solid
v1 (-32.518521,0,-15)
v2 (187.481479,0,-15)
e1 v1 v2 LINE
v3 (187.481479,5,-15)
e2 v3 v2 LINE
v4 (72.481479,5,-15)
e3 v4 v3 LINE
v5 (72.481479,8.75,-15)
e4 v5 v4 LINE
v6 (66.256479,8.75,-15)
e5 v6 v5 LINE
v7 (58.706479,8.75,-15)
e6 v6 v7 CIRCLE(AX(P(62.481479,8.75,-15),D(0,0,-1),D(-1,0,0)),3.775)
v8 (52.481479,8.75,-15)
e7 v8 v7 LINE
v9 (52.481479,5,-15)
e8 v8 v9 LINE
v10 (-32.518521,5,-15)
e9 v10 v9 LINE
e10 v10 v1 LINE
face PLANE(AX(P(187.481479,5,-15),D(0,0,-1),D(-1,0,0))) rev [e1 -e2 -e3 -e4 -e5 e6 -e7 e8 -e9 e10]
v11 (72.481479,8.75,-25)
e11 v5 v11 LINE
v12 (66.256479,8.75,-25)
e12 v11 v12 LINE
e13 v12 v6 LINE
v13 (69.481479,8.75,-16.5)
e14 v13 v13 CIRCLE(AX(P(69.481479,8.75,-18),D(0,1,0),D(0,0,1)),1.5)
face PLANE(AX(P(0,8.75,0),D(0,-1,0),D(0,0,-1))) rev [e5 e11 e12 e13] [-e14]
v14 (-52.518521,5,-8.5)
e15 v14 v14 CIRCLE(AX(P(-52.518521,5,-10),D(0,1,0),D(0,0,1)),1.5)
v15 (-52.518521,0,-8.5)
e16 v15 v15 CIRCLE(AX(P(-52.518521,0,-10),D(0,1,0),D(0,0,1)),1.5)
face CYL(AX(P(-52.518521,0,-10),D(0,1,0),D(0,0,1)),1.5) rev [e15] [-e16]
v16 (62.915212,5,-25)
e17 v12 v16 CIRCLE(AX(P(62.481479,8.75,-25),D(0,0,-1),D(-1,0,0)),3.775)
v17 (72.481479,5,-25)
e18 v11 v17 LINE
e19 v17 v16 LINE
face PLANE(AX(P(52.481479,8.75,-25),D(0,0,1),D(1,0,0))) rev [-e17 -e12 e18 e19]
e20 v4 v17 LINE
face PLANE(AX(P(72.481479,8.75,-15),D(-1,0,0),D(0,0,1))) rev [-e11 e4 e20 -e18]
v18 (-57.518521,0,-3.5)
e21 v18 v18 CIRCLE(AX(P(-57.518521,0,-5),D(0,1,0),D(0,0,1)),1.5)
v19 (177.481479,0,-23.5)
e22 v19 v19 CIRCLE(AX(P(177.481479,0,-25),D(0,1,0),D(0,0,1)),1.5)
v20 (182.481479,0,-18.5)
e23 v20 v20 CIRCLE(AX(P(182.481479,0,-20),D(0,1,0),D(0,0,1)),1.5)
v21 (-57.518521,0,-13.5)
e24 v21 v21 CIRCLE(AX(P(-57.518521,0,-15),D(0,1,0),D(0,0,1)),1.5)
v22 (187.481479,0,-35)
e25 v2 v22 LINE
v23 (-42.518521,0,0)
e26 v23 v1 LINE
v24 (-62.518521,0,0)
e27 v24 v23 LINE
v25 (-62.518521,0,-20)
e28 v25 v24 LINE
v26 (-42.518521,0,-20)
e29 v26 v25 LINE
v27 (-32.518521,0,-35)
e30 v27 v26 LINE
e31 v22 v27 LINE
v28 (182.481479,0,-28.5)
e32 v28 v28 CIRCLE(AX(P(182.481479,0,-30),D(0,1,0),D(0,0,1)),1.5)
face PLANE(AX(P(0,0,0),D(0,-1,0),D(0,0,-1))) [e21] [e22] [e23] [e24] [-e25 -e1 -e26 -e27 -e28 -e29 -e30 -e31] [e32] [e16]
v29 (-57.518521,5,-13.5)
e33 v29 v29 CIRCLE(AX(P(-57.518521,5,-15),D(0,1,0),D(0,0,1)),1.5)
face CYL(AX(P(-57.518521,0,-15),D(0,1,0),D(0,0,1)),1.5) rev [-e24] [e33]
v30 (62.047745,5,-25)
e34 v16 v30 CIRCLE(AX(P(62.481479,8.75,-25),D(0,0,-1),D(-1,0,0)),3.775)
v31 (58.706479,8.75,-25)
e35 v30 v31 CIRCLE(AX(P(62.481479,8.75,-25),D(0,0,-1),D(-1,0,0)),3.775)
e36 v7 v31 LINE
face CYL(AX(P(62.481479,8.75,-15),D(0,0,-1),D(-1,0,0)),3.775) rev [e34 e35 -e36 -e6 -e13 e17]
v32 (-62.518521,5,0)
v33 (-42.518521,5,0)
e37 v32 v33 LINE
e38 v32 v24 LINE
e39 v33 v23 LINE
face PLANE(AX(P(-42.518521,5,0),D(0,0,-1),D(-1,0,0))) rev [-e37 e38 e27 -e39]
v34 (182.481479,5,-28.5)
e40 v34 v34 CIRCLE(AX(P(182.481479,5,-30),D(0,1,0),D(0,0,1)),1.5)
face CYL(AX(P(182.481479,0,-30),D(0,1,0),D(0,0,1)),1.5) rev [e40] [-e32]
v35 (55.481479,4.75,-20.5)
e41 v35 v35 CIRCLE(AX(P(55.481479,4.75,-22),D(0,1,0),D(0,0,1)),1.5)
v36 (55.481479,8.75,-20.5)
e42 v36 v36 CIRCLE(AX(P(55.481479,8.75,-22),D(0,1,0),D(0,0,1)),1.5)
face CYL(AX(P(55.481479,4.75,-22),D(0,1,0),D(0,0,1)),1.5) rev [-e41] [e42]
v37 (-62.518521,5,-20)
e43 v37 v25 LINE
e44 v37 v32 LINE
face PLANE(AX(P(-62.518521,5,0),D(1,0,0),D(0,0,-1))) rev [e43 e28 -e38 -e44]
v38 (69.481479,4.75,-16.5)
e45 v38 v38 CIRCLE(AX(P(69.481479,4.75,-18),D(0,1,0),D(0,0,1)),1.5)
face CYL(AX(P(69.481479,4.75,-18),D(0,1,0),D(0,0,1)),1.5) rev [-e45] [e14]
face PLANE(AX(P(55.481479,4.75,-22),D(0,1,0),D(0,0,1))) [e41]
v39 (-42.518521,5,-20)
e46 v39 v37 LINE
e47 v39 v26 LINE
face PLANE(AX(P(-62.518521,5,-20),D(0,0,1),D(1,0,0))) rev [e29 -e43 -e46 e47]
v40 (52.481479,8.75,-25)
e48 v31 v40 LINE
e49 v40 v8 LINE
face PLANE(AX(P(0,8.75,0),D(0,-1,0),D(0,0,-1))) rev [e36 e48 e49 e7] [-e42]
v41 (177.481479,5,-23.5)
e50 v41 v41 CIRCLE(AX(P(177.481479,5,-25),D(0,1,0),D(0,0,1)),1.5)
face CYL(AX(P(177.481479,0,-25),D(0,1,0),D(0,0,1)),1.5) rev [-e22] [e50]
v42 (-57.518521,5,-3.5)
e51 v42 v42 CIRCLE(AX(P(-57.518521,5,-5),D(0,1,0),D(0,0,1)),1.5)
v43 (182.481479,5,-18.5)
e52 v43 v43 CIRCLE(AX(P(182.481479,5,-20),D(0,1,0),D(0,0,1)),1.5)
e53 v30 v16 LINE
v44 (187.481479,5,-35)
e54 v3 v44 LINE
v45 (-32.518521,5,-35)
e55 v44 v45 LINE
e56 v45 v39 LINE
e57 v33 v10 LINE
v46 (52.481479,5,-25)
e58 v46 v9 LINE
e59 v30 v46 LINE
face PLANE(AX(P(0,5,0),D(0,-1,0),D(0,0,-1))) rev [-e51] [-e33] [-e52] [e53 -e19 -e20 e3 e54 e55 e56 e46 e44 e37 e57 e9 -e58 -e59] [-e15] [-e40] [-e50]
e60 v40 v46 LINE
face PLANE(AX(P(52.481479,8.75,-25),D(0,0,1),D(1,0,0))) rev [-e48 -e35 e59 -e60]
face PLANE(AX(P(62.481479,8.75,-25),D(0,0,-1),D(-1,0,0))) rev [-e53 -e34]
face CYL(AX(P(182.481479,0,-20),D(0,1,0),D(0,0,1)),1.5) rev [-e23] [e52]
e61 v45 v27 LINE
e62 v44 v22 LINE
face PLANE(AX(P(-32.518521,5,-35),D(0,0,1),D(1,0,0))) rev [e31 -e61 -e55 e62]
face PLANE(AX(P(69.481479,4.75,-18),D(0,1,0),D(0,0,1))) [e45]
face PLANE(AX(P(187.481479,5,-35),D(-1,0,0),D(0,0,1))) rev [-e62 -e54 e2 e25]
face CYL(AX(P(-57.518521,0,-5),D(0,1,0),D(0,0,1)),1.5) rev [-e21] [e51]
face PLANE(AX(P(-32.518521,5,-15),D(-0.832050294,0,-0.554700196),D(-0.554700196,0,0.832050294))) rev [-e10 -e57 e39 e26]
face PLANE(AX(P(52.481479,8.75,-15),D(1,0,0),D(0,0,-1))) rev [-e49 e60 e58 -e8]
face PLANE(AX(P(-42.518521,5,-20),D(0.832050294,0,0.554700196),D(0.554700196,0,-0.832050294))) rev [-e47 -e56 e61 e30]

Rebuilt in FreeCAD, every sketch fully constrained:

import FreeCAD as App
import Part
import Sketcher


def add_polygon(sketch, points):
    """Adds a closed chain of lines whose ends are joined by coincident constraints."""
    first, n = sketch.GeometryCount, len(points)
    for a, b in zip(points, points[1:] + points[:1]):
        sketch.addGeometry(Part.LineSegment(App.Vector(*a, 0), App.Vector(*b, 0)), False)
    for i in range(n):
        sketch.addConstraint(Sketcher.Constraint("Coincident", first + i, 2, first + (i + 1) % n, 1))

doc = App.newDocument("Part")
body = doc.addObject("PartDesign::Body", "Body")

sketch1 = body.newObject("Sketcher::SketchObject", "Sketch")
sketch1.AttachmentSupport = (doc.getObject("XZ_Plane"), [""])
sketch1.MapMode = "FlatFace"
add_polygon(sketch1, [(187, -35), (-33, -35), (-43, -20), (-63, -20), (-63, 0), (-43, 0), (-33, -15), (187, -15)])
sketch1.addConstraint([
    Sketcher.Constraint("Horizontal", 0),
    Sketcher.Constraint("Horizontal", 2),
    Sketcher.Constraint("Vertical", 3),
    Sketcher.Constraint("Horizontal", 4),
    Sketcher.Constraint("Horizontal", 6),
    Sketcher.Constraint("Vertical", 7),
    Sketcher.Constraint("PointOnObject", 3, 2, -1),
    Sketcher.Constraint("Parallel", 1, 5),
    Sketcher.Constraint("Vertical", 1, 2, 4, 2),
    Sketcher.Constraint("Vertical", 0, 2, 5, 2),
    Sketcher.Constraint("Equal", 4, 3),
    Sketcher.Constraint("DistanceX", 0, 2, 0, 1, 220.0),
    Sketcher.Constraint("DistanceX", 2, 2, 2, 1, 20.0),
    Sketcher.Constraint("DistanceY", 0, 2, -1, 1, 35.0),
    Sketcher.Constraint("DistanceX", 1, 2, 0, 2, 10.0),
    Sketcher.Constraint("DistanceX", 0, 2, -1, 1, 32.518521),
])
pad1 = body.newObject("PartDesign::Pad", "Pad")
pad1.Profile = sketch1
pad1.Length = 5
pad1.Reversed = True

sketch2 = body.newObject("Sketcher::SketchObject", "Sketch001")
sketch2.AttachmentSupport = (doc.getObject("XZ_Plane"), [""])
sketch2.MapMode = "FlatFace"
sketch2.AttachmentOffset = App.Placement(App.Vector(0, 0, -5), App.Rotation())
add_polygon(sketch2, [(52, -25), (52, -15), (72, -15), (72, -25)])
sketch2.addConstraint([
    Sketcher.Constraint("Vertical", 0),
    Sketcher.Constraint("Horizontal", 1),
    Sketcher.Constraint("Vertical", 2),
    Sketcher.Constraint("Horizontal", 3),
    Sketcher.Constraint("DistanceX", 1, 1, 1, 2, 20.0),
    Sketcher.Constraint("DistanceY", 0, 1, 0, 2, 10.0),
    Sketcher.Constraint("DistanceY", 0, 2, -1, 1, 15.0),
    Sketcher.Constraint("DistanceX", -1, 1, 0, 2, 52.481479),
])
pad2 = body.newObject("PartDesign::Pad", "Pad001")
pad2.Profile = sketch2
pad2.Length = 3.75
pad2.Reversed = True

sketch3 = body.newObject("Sketcher::SketchObject", "Sketch002")
sketch3.AttachmentSupport = (doc.getObject("XY_Plane"), [""])
sketch3.MapMode = "FlatFace"
sketch3.AttachmentOffset = App.Placement(App.Vector(0, 0, -25), App.Rotation())
sketch3.addGeometry(Part.Circle(App.Vector(62.5, 8.8, 0), App.Vector(0, 0, 1), 3.8), False)
sketch3.addConstraint([
    Sketcher.Constraint("Diameter", 0, 7.55),
    Sketcher.Constraint("DistanceY", -1, 1, 0, 3, 8.75),
    Sketcher.Constraint("DistanceX", -1, 1, 0, 3, 62.481479),
])
pocket1 = body.newObject("PartDesign::Pocket", "Pocket")
pocket1.Profile = sketch3
pocket1.Length = 10
pocket1.Reversed = True

sketch4 = body.newObject("Sketcher::SketchObject", "Sketch003")
sketch4.AttachmentSupport = (doc.getObject("XZ_Plane"), [""])
sketch4.MapMode = "FlatFace"
sketch4.AttachmentOffset = App.Placement(App.Vector(0, 0, -5), App.Rotation())
sketch4.addGeometry([
    Part.Circle(App.Vector(182.5, -20, 0), App.Vector(0, 0, 1), 1.5),
    Part.Circle(App.Vector(177.5, -25, 0), App.Vector(0, 0, 1), 1.5),
    Part.Circle(App.Vector(182.5, -30, 0), App.Vector(0, 0, 1), 1.5),
    Part.Circle(App.Vector(-57.5, -5, 0), App.Vector(0, 0, 1), 1.5),
    Part.Circle(App.Vector(-57.5, -15, 0), App.Vector(0, 0, 1), 1.5),
    Part.Circle(App.Vector(-52.5, -10, 0), App.Vector(0, 0, 1), 1.5),
], False)
sketch4.addConstraint([
    Sketcher.Constraint("Equal", 0, 1),
    Sketcher.Constraint("Equal", 1, 2),
    Sketcher.Constraint("Equal", 2, 3),
    Sketcher.Constraint("Equal", 3, 4),
    Sketcher.Constraint("Equal", 4, 5),
    Sketcher.Constraint("Vertical", 0, 3, 2, 3),
    Sketcher.Constraint("Vertical", 3, 3, 4, 3),
    Sketcher.Constraint("Diameter", 0, 3.0),
    Sketcher.Constraint("DistanceY", 0, 3, -1, 1, 20.0),
    Sketcher.Constraint("DistanceY", 1, 3, -1, 1, 25.0),
    Sketcher.Constraint("DistanceY", 2, 3, -1, 1, 30.0),
    Sketcher.Constraint("DistanceY", 3, 3, -1, 1, 5.0),
    Sketcher.Constraint("DistanceY", 4, 3, -1, 1, 15.0),
    Sketcher.Constraint("DistanceY", 5, 3, -1, 1, 10.0),
    Sketcher.Constraint("DistanceX", 1, 3, 0, 3, 5.0),
    Sketcher.Constraint("DistanceX", 3, 3, 1, 3, 235.0),
    Sketcher.Constraint("DistanceX", 3, 3, 5, 3, 5.0),
    Sketcher.Constraint("DistanceX", -1, 1, 0, 3, 182.481479),
])
pocket2 = body.newObject("PartDesign::Pocket", "Pocket001")
pocket2.Profile = sketch4
pocket2.Length = 5
pocket2.Reversed = True

sketch5 = body.newObject("Sketcher::SketchObject", "Sketch004")
sketch5.AttachmentSupport = (doc.getObject("XZ_Plane"), [""])
sketch5.MapMode = "FlatFace"
sketch5.AttachmentOffset = App.Placement(App.Vector(0, 0, -8.75), App.Rotation())
sketch5.addGeometry([
    Part.Circle(App.Vector(55.5, -22, 0), App.Vector(0, 0, 1), 1.5),
    Part.Circle(App.Vector(69.5, -18, 0), App.Vector(0, 0, 1), 1.5),
], False)
sketch5.addConstraint([
    Sketcher.Constraint("Equal", 0, 1),
    Sketcher.Constraint("Diameter", 0, 3.0),
    Sketcher.Constraint("DistanceY", 0, 3, -1, 1, 22.0),
    Sketcher.Constraint("DistanceY", 1, 3, -1, 1, 18.0),
    Sketcher.Constraint("DistanceX", 0, 3, 1, 3, 14.0),
    Sketcher.Constraint("DistanceX", -1, 1, 0, 3, 55.481479),
])
pocket3 = body.newObject("PartDesign::Pocket", "Pocket002")
pocket3.Profile = sketch5
pocket3.Length = 4
pocket3.Reversed = True

doc.recompute()
